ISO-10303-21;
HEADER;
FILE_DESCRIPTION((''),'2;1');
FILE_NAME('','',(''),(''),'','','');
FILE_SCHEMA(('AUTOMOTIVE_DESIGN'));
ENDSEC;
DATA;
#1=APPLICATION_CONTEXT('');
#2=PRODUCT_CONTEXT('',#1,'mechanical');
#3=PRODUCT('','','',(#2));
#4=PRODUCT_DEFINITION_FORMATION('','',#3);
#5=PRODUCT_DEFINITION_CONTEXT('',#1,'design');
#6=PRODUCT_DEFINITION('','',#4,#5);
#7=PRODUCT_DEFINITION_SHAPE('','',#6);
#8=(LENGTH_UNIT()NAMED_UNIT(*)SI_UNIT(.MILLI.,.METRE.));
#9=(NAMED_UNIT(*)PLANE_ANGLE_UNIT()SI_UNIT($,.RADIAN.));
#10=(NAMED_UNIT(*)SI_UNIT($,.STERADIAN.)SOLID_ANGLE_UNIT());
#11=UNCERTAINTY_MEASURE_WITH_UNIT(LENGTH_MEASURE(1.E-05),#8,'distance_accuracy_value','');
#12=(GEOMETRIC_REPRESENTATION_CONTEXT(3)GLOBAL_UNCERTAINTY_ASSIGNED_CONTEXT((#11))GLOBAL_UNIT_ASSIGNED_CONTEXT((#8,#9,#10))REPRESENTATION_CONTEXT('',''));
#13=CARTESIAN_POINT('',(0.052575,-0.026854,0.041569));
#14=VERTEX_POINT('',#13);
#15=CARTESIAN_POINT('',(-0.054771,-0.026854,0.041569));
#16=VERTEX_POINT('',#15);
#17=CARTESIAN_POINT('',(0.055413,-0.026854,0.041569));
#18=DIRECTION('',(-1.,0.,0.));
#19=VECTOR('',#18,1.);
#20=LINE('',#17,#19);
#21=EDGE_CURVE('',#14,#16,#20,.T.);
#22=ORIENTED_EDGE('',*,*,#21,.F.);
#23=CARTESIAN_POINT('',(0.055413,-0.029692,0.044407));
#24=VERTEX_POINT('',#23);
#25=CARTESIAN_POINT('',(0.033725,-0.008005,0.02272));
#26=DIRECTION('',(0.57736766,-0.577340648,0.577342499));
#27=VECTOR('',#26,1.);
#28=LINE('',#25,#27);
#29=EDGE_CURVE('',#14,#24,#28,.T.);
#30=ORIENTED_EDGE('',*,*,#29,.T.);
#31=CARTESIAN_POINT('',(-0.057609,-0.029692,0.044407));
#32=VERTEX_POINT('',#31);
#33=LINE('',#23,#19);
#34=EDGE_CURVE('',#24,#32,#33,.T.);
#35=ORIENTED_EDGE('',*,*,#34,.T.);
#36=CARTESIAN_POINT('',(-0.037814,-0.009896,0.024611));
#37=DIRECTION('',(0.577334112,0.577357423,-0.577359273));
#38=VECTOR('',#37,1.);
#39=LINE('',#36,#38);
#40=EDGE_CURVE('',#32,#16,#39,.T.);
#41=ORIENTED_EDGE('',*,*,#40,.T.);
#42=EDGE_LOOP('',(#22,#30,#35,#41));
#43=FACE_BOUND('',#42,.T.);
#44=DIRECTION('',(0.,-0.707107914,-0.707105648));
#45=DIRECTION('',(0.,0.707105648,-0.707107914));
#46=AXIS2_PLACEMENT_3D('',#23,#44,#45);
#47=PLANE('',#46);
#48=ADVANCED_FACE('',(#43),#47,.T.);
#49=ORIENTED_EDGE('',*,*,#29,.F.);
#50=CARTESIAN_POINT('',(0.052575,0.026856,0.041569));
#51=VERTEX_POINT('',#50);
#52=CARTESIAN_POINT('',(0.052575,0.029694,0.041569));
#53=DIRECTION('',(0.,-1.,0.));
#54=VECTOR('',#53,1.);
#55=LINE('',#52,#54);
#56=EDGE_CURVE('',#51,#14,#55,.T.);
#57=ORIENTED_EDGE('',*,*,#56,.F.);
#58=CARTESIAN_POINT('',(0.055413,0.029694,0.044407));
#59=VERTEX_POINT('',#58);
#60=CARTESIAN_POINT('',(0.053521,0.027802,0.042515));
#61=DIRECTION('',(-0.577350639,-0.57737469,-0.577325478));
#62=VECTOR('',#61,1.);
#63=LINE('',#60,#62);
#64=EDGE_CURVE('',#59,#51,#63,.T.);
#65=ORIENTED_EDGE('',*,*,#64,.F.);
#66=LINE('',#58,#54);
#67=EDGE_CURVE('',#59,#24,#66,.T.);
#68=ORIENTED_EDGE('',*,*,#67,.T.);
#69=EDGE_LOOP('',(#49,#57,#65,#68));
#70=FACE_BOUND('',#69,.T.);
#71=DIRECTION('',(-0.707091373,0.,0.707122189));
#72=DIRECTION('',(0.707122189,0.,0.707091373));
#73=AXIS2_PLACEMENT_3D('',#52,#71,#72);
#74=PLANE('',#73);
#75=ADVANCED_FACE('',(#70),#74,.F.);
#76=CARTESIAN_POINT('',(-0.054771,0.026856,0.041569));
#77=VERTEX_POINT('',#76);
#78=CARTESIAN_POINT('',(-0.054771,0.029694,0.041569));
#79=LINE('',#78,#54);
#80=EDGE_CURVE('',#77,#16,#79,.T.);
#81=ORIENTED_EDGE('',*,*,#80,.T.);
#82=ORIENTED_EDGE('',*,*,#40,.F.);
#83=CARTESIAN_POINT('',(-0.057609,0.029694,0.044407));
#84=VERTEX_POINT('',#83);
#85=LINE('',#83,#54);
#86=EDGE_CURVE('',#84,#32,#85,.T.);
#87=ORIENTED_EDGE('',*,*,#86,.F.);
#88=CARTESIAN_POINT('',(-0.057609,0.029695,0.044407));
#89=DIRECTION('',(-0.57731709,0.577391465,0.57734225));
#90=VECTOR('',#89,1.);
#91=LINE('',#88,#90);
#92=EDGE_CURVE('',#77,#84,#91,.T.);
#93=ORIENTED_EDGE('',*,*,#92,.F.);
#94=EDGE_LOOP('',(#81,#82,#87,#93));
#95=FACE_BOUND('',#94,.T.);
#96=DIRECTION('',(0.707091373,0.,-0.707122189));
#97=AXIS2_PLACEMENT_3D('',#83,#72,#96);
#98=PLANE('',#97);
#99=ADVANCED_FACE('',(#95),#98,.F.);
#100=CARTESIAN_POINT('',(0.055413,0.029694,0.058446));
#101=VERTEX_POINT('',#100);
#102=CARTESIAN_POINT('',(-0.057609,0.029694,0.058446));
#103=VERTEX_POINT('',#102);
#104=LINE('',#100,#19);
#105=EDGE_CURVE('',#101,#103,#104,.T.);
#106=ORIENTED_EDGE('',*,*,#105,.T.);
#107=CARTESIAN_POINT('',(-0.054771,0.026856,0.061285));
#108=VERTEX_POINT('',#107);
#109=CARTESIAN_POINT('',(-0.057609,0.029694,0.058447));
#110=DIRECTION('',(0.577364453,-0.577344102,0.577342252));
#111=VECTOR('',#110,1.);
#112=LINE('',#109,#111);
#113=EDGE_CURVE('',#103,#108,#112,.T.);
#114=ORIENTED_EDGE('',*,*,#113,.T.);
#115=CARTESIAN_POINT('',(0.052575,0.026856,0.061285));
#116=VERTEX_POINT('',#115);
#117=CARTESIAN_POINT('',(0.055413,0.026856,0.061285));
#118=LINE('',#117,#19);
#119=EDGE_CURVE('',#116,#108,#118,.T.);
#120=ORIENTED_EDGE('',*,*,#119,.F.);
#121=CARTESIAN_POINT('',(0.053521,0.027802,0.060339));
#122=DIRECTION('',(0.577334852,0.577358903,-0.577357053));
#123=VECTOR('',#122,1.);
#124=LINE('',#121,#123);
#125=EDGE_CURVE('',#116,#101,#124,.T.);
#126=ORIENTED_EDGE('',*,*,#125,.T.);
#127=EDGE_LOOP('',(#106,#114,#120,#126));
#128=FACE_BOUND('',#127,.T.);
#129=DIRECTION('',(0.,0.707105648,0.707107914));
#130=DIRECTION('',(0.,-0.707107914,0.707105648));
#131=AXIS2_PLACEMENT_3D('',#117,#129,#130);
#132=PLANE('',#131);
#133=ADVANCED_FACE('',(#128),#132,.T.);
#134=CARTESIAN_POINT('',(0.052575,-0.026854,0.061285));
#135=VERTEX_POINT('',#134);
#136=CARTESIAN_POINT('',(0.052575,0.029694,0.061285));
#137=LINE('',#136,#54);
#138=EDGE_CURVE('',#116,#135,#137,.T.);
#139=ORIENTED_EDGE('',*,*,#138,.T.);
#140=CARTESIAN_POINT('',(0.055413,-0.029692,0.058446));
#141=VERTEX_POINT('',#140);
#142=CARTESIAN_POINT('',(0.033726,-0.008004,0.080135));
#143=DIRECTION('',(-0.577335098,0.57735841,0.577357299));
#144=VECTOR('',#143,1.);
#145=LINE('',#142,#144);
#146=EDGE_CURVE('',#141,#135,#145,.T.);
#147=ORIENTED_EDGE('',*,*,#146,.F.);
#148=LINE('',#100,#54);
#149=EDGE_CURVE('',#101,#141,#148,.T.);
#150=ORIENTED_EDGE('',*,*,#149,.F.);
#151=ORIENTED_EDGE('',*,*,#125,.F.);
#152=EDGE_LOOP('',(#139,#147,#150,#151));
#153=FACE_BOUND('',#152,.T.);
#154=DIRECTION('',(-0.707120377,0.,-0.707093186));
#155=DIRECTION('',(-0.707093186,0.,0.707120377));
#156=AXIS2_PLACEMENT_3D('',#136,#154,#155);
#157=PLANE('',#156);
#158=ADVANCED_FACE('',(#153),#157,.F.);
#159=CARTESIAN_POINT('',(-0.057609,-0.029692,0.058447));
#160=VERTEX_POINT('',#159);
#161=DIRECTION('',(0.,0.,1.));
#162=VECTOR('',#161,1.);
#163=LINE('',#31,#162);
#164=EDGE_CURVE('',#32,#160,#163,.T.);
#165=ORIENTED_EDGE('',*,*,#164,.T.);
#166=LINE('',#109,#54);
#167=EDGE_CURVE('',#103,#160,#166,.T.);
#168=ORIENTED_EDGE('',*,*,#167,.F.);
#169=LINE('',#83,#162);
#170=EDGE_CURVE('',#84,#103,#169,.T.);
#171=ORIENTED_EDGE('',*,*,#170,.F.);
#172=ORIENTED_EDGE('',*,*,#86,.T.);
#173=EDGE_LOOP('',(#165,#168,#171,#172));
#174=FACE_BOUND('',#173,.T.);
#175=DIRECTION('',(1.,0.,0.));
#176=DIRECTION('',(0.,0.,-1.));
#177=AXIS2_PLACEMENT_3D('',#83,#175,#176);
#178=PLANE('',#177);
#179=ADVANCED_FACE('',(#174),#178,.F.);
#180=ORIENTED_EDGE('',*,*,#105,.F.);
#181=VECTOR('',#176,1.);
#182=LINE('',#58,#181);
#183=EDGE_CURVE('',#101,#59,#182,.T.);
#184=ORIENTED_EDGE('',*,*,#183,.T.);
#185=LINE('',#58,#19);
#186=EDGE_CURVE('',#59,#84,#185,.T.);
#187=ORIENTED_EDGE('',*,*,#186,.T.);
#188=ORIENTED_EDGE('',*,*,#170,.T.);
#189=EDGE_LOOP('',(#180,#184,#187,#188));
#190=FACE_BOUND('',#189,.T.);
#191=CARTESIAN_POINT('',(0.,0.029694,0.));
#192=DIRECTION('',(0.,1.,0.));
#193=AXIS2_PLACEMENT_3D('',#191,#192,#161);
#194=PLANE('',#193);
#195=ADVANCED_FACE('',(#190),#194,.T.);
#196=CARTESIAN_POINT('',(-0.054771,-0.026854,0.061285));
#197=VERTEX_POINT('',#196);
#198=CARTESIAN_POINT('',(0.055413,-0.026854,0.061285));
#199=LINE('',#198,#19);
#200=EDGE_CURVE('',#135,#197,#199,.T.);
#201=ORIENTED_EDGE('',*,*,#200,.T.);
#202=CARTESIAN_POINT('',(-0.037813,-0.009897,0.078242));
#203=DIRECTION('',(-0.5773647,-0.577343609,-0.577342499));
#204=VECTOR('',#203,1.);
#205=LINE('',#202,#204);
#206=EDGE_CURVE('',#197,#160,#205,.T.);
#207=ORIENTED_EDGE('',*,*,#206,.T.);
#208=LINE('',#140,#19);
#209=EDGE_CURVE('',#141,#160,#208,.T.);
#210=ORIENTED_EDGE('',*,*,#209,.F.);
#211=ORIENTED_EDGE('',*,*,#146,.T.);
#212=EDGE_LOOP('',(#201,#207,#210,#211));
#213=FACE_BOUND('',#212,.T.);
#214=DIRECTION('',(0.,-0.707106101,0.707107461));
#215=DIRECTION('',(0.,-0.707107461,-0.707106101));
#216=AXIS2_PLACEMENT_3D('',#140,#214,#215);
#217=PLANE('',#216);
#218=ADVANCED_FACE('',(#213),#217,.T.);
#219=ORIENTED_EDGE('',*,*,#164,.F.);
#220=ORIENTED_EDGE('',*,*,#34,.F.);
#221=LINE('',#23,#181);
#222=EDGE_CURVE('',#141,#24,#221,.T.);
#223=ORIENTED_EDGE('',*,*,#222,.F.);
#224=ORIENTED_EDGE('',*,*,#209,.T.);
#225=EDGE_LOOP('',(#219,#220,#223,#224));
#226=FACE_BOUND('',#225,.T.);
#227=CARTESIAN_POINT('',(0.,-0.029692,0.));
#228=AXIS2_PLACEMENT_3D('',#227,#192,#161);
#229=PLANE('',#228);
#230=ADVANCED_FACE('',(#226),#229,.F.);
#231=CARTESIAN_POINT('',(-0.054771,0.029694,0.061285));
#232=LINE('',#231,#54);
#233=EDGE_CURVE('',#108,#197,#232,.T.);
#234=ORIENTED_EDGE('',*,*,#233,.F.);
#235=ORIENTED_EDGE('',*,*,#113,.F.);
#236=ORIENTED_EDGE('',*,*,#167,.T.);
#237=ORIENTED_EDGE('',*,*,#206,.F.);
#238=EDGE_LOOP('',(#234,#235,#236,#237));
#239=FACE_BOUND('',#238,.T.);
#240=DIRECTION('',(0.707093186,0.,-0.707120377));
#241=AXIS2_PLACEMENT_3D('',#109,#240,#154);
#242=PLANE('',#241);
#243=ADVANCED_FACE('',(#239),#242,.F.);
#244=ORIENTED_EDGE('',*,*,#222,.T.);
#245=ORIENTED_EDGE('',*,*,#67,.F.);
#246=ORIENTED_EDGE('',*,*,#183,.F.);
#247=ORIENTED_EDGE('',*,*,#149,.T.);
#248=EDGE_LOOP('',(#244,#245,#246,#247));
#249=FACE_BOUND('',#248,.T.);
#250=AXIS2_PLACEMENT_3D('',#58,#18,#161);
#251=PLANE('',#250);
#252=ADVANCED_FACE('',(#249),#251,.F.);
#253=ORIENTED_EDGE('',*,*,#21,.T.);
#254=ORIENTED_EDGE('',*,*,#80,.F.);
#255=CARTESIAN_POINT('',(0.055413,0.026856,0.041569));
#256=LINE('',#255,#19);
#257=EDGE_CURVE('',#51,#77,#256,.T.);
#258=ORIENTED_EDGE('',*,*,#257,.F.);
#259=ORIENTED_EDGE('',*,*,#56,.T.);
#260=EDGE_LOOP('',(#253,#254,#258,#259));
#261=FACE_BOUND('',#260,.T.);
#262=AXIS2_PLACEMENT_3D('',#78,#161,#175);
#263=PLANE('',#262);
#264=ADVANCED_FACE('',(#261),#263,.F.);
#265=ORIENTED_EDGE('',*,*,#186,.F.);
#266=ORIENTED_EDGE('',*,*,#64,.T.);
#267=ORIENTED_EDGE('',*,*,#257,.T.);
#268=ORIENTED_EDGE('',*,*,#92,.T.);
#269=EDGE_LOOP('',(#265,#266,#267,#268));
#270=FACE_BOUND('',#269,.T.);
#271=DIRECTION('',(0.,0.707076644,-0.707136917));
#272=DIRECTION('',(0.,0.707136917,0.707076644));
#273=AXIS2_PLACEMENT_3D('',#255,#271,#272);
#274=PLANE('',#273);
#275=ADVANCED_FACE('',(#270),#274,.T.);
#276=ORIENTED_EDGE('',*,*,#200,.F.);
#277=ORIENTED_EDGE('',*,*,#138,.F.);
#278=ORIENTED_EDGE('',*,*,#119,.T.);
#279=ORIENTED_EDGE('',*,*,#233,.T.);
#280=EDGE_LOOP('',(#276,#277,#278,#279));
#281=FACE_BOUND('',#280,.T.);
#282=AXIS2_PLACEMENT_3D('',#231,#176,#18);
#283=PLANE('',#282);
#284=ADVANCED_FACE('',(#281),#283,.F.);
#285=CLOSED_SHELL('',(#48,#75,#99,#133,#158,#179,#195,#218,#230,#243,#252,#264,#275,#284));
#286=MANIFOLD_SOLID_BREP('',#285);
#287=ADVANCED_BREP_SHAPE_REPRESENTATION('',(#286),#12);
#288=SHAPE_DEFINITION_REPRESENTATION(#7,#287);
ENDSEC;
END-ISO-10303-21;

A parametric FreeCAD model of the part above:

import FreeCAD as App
import Part
import Sketcher


def add_polygon(sketch, points):
    """Adds a closed chain of lines whose ends are joined by coincident constraints."""
    first, n = sketch.GeometryCount, len(points)
    for a, b in zip(points, points[1:] + points[:1]):
        sketch.addGeometry(Part.LineSegment(App.Vector(*a, 0), App.Vector(*b, 0)), False)
    for i in range(n):
        sketch.addConstraint(Sketcher.Constraint("Coincident", first + i, 2, first + (i + 1) % n, 1))

doc = App.newDocument("Part")
body = doc.addObject("PartDesign::Body", "Body")

# Sketch on XZ plane
sketch1 = body.newObject("Sketcher::SketchObject", "Sketch")
sketch1.AttachmentSupport = (doc.getObject("XZ_Plane"), [""])
sketch1.MapMode = "FlatFace"
sketch1.AttachmentOffset = App.Placement(App.Vector(0, 0, 0.029692), App.Rotation())
add_polygon(sketch1, [(-0.054771, 0.041569), (-0.057609, 0.044407), (-0.057609, 0.058447), (-0.054771, 0.061285), (0.052575, 0.061285), (0.055413, 0.058446), (0.055413, 0.044407), (0.052575, 0.041569)])  # lines 0-7
sketch1.addConstraint(Sketcher.Constraint("Vertical", 1))
sketch1.addConstraint(Sketcher.Constraint("Horizontal", 3))
sketch1.addConstraint(Sketcher.Constraint("Vertical", 5))
sketch1.addConstraint(Sketcher.Constraint("Horizontal", 7))
sketch1.addConstraint(Sketcher.Constraint("Perpendicular", 2, 4))
sketch1.addConstraint(Sketcher.Constraint("Perpendicular", 0, 6))
sketch1.addConstraint(Sketcher.Constraint("Horizontal", 1, 2, 4, 2))
sketch1.addConstraint(Sketcher.Constraint("Horizontal", 0, 2, 5, 2))
sketch1.addConstraint(Sketcher.Constraint("Vertical", 3, 2, 6, 2))
sketch1.addConstraint(Sketcher.Constraint("Vertical", 2, 2, 7, 2))
sketch1.addConstraint(Sketcher.Constraint("Equal", 2, 4))
sketch1.addConstraint(Sketcher.Constraint("DistanceY", 1, 1, 1, 2, 0.01404))
sketch1.addConstraint(Sketcher.Constraint("DistanceX", 3, 1, 3, 2, 0.107346))
sketch1.addConstraint(Sketcher.Constraint("DistanceX", 0, 2, -1, 1, 0.057609))
sketch1.addConstraint(Sketcher.Constraint("DistanceX", 2, 2, -1, 1, 0.054771))
sketch1.addConstraint(Sketcher.Constraint("DistanceY", -1, 1, 6, 2, 0.041569))
pad1 = body.newObject("PartDesign::Pad", "Pad")
pad1.Profile = sketch1
pad1.Length = 0.059386
pad1.Reversed = True

# Sketch on YZ plane
sketch2 = body.newObject("Sketcher::SketchObject", "Sketch001")
sketch2.AttachmentSupport = (doc.getObject("YZ_Plane"), [""])
sketch2.MapMode = "FlatFace"
sketch2.AttachmentOffset = App.Placement(App.Vector(0, 0, -0.057609), App.Rotation())
add_polygon(sketch2, [(0.026856, 0.061285), (0.029694, 0.058446), (0.029694, 0.061285)])  # lines 0-2
add_polygon(sketch2, [(0.029694, 0.044407), (0.026856, 0.041569), (0.029694, 0.041569)])  # lines 3-5
add_polygon(sketch2, [(-0.029692, 0.058446), (-0.026854, 0.061285), (-0.029692, 0.061285)])  # lines 6-8
add_polygon(sketch2, [(-0.026854, 0.041569), (-0.029692, 0.044407), (-0.029692, 0.041569)])  # lines 9-11
sketch2.addConstraint(Sketcher.Constraint("Vertical", 1))
sketch2.addConstraint(Sketcher.Constraint("Horizontal", 2))
sketch2.addConstraint(Sketcher.Constraint("Horizontal", 4))
sketch2.addConstraint(Sketcher.Constraint("Vertical", 5))
sketch2.addConstraint(Sketcher.Constraint("Horizontal", 7))
sketch2.addConstraint(Sketcher.Constraint("Vertical", 8))
sketch2.addConstraint(Sketcher.Constraint("Vertical", 10))
sketch2.addConstraint(Sketcher.Constraint("Horizontal", 11))
sketch2.addConstraint(Sketcher.Constraint("Symmetric", 2, 2, 6, 2, -2))
sketch2.addConstraint(Sketcher.Constraint("Symmetric", 0, 2, 8, 2, -2))
sketch2.addConstraint(Sketcher.Constraint("Symmetric", 5, 2, 9, 2, -2))
sketch2.addConstraint(Sketcher.Constraint("Symmetric", 3, 2, 11, 2, -2))
sketch2.addConstraint(Sketcher.Constraint("Perpendicular", 6, 9))
sketch2.addConstraint(Sketcher.Constraint("Vertical", 2, 2, 3, 2))
sketch2.addConstraint(Sketcher.Constraint("Vertical", 1, 2, 4, 2))
sketch2.addConstraint(Sketcher.Constraint("Equal", 11, 1))
sketch2.addConstraint(Sketcher.Constraint("DistanceX", 2, 2, 2, 1, 0.002838))
sketch2.addConstraint(Sketcher.Constraint("DistanceY", -1, 1, 3, 2, 0.041569))
sketch2.addConstraint(Sketcher.Constraint("DistanceY", 5, 2, 0, 2, 0.01404))
sketch2.addConstraint(Sketcher.Constraint("DistanceX", 6, 2, 2, 2, 0.05371))
pocket1 = body.newObject("PartDesign::Pocket", "Pocket")
pocket1.Profile = sketch2
pocket1.Length = 1.131953
pocket1.Reversed = True

doc.recompute()
